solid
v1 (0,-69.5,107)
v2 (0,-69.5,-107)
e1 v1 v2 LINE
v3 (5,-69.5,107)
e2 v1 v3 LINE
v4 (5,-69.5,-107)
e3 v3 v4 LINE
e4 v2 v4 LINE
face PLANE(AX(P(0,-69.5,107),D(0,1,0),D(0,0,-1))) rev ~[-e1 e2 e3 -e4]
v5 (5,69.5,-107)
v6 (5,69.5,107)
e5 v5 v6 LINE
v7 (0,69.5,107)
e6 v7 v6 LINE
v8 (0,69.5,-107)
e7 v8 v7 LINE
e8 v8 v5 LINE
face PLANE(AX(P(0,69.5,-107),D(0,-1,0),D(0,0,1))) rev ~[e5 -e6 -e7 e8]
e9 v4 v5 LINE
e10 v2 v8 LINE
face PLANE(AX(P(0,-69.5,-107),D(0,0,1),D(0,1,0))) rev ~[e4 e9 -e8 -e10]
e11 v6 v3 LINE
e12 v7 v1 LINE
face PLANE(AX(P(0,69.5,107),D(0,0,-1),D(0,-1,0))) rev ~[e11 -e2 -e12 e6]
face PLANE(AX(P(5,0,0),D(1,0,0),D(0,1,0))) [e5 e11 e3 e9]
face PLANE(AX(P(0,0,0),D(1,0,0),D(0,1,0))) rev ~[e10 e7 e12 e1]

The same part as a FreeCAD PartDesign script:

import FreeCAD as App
import Part
import Sketcher
from FreeCAD import Vector


def add_polygon(sketch, points):
    """Adds a closed chain of lines whose ends are joined by coincident constraints."""
    first, n = sketch.GeometryCount, len(points)
    for a, b in zip(points, points[1:] + points[:1]):
        sketch.addGeometry(Part.LineSegment(App.Vector(*a, 0), App.Vector(*b, 0)), False)
    for i in range(n):
        sketch.addConstraint(Sketcher.Constraint("Coincident", first + i, 2, first + (i + 1) % n, 1))

doc = App.newDocument("Part")
body = doc.addObject("PartDesign::Body", "Body")

# Sketch on YZ plane
sketch1 = body.newObject("Sketcher::SketchObject", "Sketch")
sketch1.AttachmentSupport = (doc.getObject("YZ_Plane"), [""])
sketch1.MapMode = "FlatFace"
add_polygon(sketch1, [(70, -107), (70, 107), (-70, 107), (-70, -107)])  # lines 0-3
sketch1.addConstraint([
    Sketcher.Constraint("Vertical", 0),
    Sketcher.Constraint("Horizontal", 1),
    Sketcher.Constraint("Vertical", 2),
    Sketcher.Constraint("Horizontal", 3),
    Sketcher.Constraint("Symmetric", 0, 2, 2, 2, -1, 1),
    Sketcher.Constraint("DistanceX", 1, 2, 1, 1, 139.0),
    Sketcher.Constraint("DistanceY", 0, 1, 0, 2, 214.0),
])
pad1 = body.newObject("PartDesign::Pad", "Pad")
pad1.Profile = sketch1
pad1.Length = 5

doc.recompute()
